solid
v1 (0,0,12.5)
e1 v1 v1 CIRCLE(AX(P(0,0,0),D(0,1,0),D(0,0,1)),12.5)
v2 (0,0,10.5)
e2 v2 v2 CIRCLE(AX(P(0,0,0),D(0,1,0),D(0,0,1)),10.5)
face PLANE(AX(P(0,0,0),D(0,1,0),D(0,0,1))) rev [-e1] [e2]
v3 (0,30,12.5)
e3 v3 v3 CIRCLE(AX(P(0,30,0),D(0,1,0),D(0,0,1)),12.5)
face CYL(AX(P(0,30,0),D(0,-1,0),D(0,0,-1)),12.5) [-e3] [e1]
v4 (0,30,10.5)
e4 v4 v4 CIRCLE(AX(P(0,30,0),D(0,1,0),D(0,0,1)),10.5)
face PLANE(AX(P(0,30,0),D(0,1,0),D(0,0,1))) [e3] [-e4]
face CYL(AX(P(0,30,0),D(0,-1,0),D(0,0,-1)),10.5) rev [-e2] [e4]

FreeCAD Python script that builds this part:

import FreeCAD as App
import Part
import Sketcher

V = App.Vector

doc = App.newDocument("Part")
body = doc.addObject("PartDesign::Body", "Body")

sketch1 = body.newObject("Sketcher::SketchObject", "Sketch")
sketch1.AttachmentSupport = (doc.getObject("XZ_Plane"), [""])
sketch1.MapMode = "FlatFace"
sketch1.addGeometry(Part.Circle(V(0, 0, 0), V(0, 0, 1), 12.5), False)
sketch1.addGeometry(Part.Circle(V(0, 0, 0), V(0, 0, 1), 10.5), False)
sketch1.addConstraint(Sketcher.Constraint("Coincident", 0, 3, -1, 1))
sketch1.addConstraint(Sketcher.Constraint("Coincident", 1, 3, -1, 1))
sketch1.addConstraint(Sketcher.Constraint("Diameter", 0, 25.0))
sketch1.addConstraint(Sketcher.Constraint("Diameter", 1, 21.0))
pad1 = body.newObject("PartDesign::Pad", "Pad")
pad1.Profile = sketch1
pad1.Length = 30
pad1.Reversed = True

doc.recompute()
